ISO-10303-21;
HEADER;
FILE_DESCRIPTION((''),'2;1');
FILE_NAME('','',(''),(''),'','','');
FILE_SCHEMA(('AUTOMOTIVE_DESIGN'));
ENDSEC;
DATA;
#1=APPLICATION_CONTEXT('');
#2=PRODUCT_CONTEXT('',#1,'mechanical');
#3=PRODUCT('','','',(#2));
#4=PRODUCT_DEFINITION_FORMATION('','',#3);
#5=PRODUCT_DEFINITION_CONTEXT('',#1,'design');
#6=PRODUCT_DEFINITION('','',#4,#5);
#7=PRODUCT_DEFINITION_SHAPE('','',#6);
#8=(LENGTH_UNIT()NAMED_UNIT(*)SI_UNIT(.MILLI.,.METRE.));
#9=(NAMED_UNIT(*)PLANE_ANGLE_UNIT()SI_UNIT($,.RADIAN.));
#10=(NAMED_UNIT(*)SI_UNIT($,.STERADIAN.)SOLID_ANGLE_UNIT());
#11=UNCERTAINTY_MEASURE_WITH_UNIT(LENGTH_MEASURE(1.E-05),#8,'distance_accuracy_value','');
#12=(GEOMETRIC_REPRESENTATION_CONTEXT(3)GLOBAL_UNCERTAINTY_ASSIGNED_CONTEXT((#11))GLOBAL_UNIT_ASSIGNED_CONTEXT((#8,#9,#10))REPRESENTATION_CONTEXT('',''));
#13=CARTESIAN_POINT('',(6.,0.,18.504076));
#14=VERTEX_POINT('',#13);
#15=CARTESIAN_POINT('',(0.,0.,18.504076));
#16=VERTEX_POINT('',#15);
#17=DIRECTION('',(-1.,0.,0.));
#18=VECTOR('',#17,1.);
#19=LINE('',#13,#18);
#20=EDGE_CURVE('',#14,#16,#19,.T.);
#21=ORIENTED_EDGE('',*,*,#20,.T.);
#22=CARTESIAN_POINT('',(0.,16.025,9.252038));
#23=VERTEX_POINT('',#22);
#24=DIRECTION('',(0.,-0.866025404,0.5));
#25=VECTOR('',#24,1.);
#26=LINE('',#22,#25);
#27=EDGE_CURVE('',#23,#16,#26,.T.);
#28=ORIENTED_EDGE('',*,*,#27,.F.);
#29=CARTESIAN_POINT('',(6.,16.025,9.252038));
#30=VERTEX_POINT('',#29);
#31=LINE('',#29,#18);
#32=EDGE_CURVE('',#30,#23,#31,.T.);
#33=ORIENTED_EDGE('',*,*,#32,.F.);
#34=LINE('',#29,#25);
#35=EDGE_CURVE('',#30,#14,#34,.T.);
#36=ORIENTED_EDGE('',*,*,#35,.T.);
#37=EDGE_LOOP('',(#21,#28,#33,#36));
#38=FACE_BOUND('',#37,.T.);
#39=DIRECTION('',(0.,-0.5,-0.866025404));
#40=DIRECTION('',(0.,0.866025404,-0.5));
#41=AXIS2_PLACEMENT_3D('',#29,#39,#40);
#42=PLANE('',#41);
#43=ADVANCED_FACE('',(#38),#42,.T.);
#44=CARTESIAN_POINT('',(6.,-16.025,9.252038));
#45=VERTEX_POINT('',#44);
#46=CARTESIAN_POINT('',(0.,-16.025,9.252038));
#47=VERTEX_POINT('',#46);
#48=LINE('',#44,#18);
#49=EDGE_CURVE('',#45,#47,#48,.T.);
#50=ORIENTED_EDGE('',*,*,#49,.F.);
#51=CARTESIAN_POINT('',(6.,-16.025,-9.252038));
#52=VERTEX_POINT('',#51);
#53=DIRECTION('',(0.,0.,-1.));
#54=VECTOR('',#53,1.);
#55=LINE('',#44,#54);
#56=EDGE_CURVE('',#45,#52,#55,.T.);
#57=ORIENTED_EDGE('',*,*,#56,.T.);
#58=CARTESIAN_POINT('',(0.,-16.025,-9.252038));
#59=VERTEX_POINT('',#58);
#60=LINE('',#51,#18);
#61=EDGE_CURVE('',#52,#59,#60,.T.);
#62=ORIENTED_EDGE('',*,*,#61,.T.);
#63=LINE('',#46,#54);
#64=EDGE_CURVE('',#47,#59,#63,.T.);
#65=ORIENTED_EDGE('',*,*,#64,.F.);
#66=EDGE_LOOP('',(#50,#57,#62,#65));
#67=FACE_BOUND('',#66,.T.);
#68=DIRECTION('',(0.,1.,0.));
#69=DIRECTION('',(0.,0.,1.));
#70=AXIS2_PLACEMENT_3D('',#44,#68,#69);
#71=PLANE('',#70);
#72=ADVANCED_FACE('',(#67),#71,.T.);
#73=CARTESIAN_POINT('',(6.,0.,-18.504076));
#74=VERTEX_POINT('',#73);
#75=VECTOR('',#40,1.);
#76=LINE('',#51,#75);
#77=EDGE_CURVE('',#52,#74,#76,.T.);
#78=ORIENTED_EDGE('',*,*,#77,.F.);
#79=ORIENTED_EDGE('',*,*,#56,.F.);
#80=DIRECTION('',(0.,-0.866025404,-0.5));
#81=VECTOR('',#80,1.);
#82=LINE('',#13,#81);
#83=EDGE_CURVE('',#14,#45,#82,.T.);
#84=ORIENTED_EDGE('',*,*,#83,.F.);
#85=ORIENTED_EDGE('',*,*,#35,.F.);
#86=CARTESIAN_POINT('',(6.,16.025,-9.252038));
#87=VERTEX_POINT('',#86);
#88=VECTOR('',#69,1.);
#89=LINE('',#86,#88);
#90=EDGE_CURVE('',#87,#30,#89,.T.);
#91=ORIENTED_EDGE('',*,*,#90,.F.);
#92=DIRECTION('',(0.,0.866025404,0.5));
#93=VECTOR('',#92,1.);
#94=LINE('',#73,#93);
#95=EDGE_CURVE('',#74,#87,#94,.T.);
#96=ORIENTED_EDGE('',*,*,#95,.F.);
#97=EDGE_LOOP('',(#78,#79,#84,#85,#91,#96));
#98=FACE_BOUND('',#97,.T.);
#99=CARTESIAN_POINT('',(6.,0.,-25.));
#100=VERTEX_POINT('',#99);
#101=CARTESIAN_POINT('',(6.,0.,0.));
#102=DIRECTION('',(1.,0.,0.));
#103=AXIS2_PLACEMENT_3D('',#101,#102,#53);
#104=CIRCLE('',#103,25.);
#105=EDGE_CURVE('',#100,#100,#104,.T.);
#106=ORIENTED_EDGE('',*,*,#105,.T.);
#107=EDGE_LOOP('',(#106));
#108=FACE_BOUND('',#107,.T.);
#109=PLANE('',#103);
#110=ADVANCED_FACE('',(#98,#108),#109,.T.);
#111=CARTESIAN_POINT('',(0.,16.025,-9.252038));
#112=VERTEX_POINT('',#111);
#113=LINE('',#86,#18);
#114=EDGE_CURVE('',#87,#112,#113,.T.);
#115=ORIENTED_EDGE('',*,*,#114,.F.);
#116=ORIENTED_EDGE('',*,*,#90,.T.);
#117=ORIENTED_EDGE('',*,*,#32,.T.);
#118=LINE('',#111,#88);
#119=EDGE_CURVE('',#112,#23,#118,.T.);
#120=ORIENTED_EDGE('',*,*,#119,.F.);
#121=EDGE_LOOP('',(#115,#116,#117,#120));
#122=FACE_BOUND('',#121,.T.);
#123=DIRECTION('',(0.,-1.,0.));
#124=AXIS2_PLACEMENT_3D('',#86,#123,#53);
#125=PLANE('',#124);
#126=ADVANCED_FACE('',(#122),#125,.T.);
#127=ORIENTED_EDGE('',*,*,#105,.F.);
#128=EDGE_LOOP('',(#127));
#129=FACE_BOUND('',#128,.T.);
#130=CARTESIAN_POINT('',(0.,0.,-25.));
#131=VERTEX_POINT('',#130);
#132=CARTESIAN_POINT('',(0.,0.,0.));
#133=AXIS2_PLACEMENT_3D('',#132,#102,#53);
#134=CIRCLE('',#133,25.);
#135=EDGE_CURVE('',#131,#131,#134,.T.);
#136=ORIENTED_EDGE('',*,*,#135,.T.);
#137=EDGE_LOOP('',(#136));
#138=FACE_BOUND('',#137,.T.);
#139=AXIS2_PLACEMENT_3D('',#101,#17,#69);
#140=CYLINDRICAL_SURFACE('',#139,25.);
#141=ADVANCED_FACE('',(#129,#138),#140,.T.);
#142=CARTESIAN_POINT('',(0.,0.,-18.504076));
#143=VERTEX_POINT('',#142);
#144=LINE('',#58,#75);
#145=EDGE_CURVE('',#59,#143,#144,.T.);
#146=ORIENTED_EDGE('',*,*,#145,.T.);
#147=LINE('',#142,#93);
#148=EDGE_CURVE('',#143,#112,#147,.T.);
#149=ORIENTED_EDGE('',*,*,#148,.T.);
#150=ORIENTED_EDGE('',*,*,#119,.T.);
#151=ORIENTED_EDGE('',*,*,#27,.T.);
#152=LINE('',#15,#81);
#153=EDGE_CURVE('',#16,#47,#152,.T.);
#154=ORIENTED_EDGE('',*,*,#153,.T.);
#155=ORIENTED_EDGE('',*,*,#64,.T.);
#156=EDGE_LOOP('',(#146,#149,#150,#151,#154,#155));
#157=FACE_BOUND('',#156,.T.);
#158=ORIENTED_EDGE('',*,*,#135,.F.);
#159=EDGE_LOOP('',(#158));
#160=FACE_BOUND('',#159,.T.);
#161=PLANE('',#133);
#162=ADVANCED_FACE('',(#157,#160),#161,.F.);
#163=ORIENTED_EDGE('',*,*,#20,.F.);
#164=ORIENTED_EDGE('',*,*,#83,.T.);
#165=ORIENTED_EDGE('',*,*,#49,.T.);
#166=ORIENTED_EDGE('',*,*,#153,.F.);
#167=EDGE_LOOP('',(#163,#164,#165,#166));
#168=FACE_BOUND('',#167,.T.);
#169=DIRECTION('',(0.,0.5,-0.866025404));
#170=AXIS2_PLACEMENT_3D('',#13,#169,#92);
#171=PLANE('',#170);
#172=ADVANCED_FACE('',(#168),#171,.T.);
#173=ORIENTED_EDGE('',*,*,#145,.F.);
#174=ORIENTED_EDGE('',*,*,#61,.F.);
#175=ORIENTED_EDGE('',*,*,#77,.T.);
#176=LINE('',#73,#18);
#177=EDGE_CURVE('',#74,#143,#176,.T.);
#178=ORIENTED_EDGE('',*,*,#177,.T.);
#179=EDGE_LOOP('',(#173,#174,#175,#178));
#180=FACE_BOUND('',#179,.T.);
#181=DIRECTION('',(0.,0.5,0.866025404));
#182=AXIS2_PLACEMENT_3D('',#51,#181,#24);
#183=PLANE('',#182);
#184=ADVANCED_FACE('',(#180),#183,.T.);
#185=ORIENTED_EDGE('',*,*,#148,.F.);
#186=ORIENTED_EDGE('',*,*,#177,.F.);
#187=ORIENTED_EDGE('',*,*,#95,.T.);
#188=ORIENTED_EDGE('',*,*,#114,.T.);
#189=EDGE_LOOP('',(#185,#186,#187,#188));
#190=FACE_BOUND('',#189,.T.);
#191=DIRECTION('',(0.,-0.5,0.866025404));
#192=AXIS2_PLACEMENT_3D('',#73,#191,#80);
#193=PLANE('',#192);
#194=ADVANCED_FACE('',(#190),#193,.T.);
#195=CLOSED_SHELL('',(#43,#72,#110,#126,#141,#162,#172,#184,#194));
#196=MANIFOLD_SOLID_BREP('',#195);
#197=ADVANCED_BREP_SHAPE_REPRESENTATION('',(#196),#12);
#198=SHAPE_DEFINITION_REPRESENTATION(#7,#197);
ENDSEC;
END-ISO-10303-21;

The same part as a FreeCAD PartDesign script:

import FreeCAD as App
import Part
import Sketcher

V = App.Vector
Q = App.Units.Quantity


def add_polygon(sketch, points):
    """Adds a closed chain of lines whose ends are joined by coincident constraints."""
    first, n = sketch.GeometryCount, len(points)
    for a, b in zip(points, points[1:] + points[:1]):
        sketch.addGeometry(Part.LineSegment(App.Vector(*a, 0), App.Vector(*b, 0)), False)
    for i in range(n):
        sketch.addConstraint(Sketcher.Constraint("Coincident", first + i, 2, first + (i + 1) % n, 1))

doc = App.newDocument("Part")
params = doc.addObject("Spreadsheet::Sheet", "Params")
for row, (alias, value) in enumerate([
    ("sketch1_diameter", "50 mm"),
    ("pad1_length", "6 mm"),
], start=1):
    params.set(f"A{row}", alias)
    params.set(f"B{row}", "=" + value)
    params.setAlias(f"B{row}", alias)

body = doc.addObject("PartDesign::Body", "Body")

sketch1 = body.newObject("Sketcher::SketchObject", "Sketch")
sketch1.AttachmentSupport = (doc.getObject("YZ_Plane"), [""])
sketch1.MapMode = "FlatFace"
sketch1.addGeometry(Part.Circle(V(0, 0, 0), V(0, 0, 1), 25), False)
add_polygon(sketch1, [(16, -9), (0, -19), (-16, -9), (-16, 9), (0, 19), (16, 9)])
sketch1.addConstraint([
    Sketcher.Constraint("Vertical", 3),
    Sketcher.Constraint("Vertical", 6),
    Sketcher.Constraint("Coincident", 0, 3, -1, 1),
    Sketcher.Constraint("Symmetric", 1, 2, 4, 2, -1, 1),
    Sketcher.Constraint("Symmetric", 2, 2, 5, 2, -1, 1),
    Sketcher.Constraint("PointOnObject", 1, 2, -2),
    Sketcher.Constraint("Parallel", 1, 4),
    Sketcher.Constraint("Horizontal", 3, 2, 5, 2),
    Sketcher.Constraint("Diameter", 0, 50.0),
    Sketcher.Constraint("Angle", 1, Q("-150 deg")),
    Sketcher.Constraint("DistanceX", 3, 2, 5, 2, 32.05),
    Sketcher.Constraint("DistanceY", 3, 1, 3, 2, 18.504076),
])
sketch1.setExpression("Constraints[14]", "Params.sketch1_diameter")
pad1 = body.newObject("PartDesign::Pad", "Pad")
pad1.Profile = sketch1
pad1.setExpression("Length", "Params.pad1_length")

doc.recompute()
